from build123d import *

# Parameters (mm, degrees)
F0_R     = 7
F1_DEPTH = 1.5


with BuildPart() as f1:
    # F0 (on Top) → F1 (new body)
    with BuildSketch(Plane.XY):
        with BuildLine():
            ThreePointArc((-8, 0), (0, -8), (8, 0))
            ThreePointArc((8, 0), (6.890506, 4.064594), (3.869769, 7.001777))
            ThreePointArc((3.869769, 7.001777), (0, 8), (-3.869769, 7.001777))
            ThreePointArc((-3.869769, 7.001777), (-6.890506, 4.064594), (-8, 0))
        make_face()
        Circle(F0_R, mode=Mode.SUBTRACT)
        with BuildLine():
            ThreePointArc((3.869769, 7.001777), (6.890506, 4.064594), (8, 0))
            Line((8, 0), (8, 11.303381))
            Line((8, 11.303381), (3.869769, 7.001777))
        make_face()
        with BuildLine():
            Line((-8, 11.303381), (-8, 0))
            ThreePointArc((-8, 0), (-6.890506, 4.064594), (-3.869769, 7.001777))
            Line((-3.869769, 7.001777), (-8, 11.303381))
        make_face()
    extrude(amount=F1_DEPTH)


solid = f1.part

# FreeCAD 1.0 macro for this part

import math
import FreeCAD as App
import Part
import Sketcher

V = App.Vector

doc = App.newDocument("Part")
body = doc.addObject("PartDesign::Body", "Body")

# Sketch on XY plane
sketch1 = doc.addObject("Sketcher::SketchObject", "Sketch")
body.addObject(sketch1)
sketch1.AttachmentSupport = (doc.XY_Plane, [""])
sketch1.MapMode = "FlatFace"
sketch1.addGeometry([
    Part.ArcOfCircle(Part.Circle(V(0, 0, 0), V(0, 0, 1), 8), math.radians(180), math.radians(360)),  # 0
    Part.LineSegment(V(8, 0, 0), V(8, 11, 0)),  # 1
    Part.LineSegment(V(8, 11, 0), V(4, 7, 0)),  # 2
    Part.ArcOfCircle(Part.Circle(V(0, 0, 0), V(0, 0, 1), 8), math.radians(61), math.radians(119)),  # 3
    Part.LineSegment(V(-4, 7, 0), V(-8, 11, 0)),  # 4
    Part.LineSegment(V(-8, 11, 0), V(-8, 0, 0)),  # 5
    Part.Circle(V(0, 0, 0), V(0, 0, 1), 7),  # 6
], False)
sketch1.addConstraint([
    Sketcher.Constraint("Tangent", 0, 2, 1, 1),
    Sketcher.Constraint("Coincident", 1, 2, 2, 1),
    Sketcher.Constraint("Coincident", 2, 2, 3, 1),
    Sketcher.Constraint("Coincident", 3, 2, 4, 1),
    Sketcher.Constraint("Coincident", 4, 2, 5, 1),
    Sketcher.Constraint("Tangent", 5, 2, 0, 1),
    Sketcher.Constraint("Vertical", 1),
    Sketcher.Constraint("Vertical", 5),
    Sketcher.Constraint("Coincident", 0, 3, -1, 1),
    Sketcher.Constraint("Coincident", 3, 3, -1, 1),
    Sketcher.Constraint("Coincident", 6, 3, -1, 1),
    Sketcher.Constraint("Horizontal", 2, 2, 3, 2),
    Sketcher.Constraint("Horizontal", 1, 2, 4, 2),
    Sketcher.Constraint("Diameter", 6, 14.0),
    Sketcher.Constraint("Radius", 0, 8.0),
    Sketcher.Constraint("Radius", 3, 7.999997),
    Sketcher.Constraint("DistanceY", 1, 1, 1, 2, 11.303381),
    Sketcher.Constraint("Distance", 2, 5.963439),
])
pad1 = doc.addObject("PartDesign::Pad", "Pad")
body.addObject(pad1)
pad1.Profile = sketch1
pad1.Length = 1.5

doc.recompute()
